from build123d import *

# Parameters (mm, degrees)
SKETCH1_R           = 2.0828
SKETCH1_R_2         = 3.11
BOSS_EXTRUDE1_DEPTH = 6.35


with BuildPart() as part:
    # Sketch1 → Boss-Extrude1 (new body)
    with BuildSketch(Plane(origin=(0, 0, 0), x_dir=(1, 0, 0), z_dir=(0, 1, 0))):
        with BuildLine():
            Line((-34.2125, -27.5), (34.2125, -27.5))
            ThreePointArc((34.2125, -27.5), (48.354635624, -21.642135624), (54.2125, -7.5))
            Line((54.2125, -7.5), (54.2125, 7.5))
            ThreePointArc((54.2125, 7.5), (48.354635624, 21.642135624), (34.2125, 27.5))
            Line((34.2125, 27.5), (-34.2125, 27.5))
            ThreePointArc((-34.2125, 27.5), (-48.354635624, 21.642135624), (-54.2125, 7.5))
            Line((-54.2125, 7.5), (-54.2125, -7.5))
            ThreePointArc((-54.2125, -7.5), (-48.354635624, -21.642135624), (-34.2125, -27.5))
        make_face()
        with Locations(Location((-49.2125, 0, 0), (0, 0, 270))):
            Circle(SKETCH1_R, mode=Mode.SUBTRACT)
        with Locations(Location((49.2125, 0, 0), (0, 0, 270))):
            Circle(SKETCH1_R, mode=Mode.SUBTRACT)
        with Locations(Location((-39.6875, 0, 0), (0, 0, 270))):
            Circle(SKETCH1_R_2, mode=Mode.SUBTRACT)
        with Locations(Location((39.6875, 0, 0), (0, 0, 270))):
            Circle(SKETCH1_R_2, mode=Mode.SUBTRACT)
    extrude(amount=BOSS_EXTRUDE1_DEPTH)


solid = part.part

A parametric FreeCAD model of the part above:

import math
import FreeCAD as App
import Part
import Sketcher
from FreeCAD import Vector
Q = App.Units.Quantity

doc = App.newDocument("Part")
body = doc.addObject("PartDesign::Body", "Body")

# Sketch on XZ plane
sketch1 = body.newObject("Sketcher::SketchObject", "Sketch")
sketch1.AttachmentSupport = (doc.getObject("XZ_Plane"), [""])
sketch1.MapMode = "FlatFace"
sketch1.addGeometry(Part.LineSegment(Vector(-34.2, 27.5, 0), Vector(34.2, 27.5, 0)), False)
sketch1.addGeometry(Part.ArcOfCircle(Part.Circle(Vector(34.2, 7.5, 0), Vector(0, 0, 1), 20), math.radians(0), math.radians(90)), False)
sketch1.addGeometry(Part.LineSegment(Vector(54.2, 7.5, 0), Vector(54.2, -7.5, 0)), False)
sketch1.addGeometry(Part.ArcOfCircle(Part.Circle(Vector(34.2, -7.5, 0), Vector(0, 0, 1), 20), math.radians(-90), math.radians(0)), False)
sketch1.addGeometry(Part.LineSegment(Vector(34.2, -27.5, 0), Vector(-34.2, -27.5, 0)), False)
sketch1.addGeometry(Part.ArcOfCircle(Part.Circle(Vector(-34.2, -7.5, 0), Vector(0, 0, 1), 20), math.radians(180), math.radians(270)), False)
sketch1.addGeometry(Part.LineSegment(Vector(-54.2, -7.5, 0), Vector(-54.2, 7.5, 0)), False)
sketch1.addGeometry(Part.ArcOfCircle(Part.Circle(Vector(-34.2, 7.5, 0), Vector(0, 0, 1), 20), math.radians(90), math.radians(180)), False)
sketch1.addGeometry(Part.Circle(Vector(-49.2, 0, 0), Vector(0, 0, 1), 2.1), False)
sketch1.addGeometry(Part.Circle(Vector(-39.7, 0, 0), Vector(0, 0, 1), 3.1), False)
sketch1.addGeometry(Part.Circle(Vector(39.7, 0, 0), Vector(0, 0, 1), 3.1), False)
sketch1.addGeometry(Part.Circle(Vector(49.2, 0, 0), Vector(0, 0, 1), 2.1), False)
sketch1.addConstraint(Sketcher.Constraint("Tangent", 0, 2, 1, 2))
sketch1.addConstraint(Sketcher.Constraint("Tangent", 1, 1, 2, 1))
sketch1.addConstraint(Sketcher.Constraint("Tangent", 2, 2, 3, 2))
sketch1.addConstraint(Sketcher.Constraint("Tangent", 3, 1, 4, 1))
sketch1.addConstraint(Sketcher.Constraint("Tangent", 4, 2, 5, 2))
sketch1.addConstraint(Sketcher.Constraint("Tangent", 5, 1, 6, 1))
sketch1.addConstraint(Sketcher.Constraint("Tangent", 6, 2, 7, 2))
sketch1.addConstraint(Sketcher.Constraint("Tangent", 7, 1, 0, 1))
sketch1.addConstraint(Sketcher.Constraint("Horizontal", 0))
sketch1.addConstraint(Sketcher.Constraint("Vertical", 2))
sketch1.addConstraint(Sketcher.Constraint("Horizontal", 4))
sketch1.addConstraint(Sketcher.Constraint("Vertical", 6))
sketch1.addConstraint(Sketcher.Constraint("Equal", 1, 3))
sketch1.addConstraint(Sketcher.Constraint("Equal", 3, 5))
sketch1.addConstraint(Sketcher.Constraint("Equal", 5, 7))
sketch1.addConstraint(Sketcher.Constraint("Equal", 9, 10))
sketch1.addConstraint(Sketcher.Constraint("Equal", 8, 11))
sketch1.addConstraint(Sketcher.Constraint("Symmetric", 1, 3, 5, 3, -1, 1))
sketch1.addConstraint(Sketcher.Constraint("Symmetric", 9, 3, 10, 3, -1, 1))
sketch1.addConstraint(Sketcher.Constraint("Symmetric", 8, 3, 11, 3, -1, 1))
sketch1.addConstraint(Sketcher.Constraint("PointOnObject", 8, 3, -1))
sketch1.addConstraint(Sketcher.Constraint("PointOnObject", 9, 3, -1))
sketch1.addConstraint(Sketcher.Constraint("Radius", 1, Q("20 mm")))
sketch1.addConstraint(Sketcher.Constraint("Diameter", 9, Q("6.22 mm")))
sketch1.addConstraint(Sketcher.Constraint("DistanceY", 2, 2, 2, 1, Q("15 mm")))
sketch1.addConstraint(Sketcher.Constraint("DistanceX", 8, 3, 5, 3, Q("15 mm")))
sketch1.addConstraint(Sketcher.Constraint("Diameter", 8, Q("4.1656 mm")))
sketch1.addConstraint(Sketcher.Constraint("DistanceX", 9, 3, 1, 3, Q("73.9 mm")))
sketch1.addConstraint(Sketcher.Constraint("DistanceX", 0, 1, 0, 2, Q("68.425 mm")))
pad1 = body.newObject("PartDesign::Pad", "Pad")
pad1.Profile = sketch1
pad1.Length = 6.35
pad1.Reversed = True

doc.recompute()
